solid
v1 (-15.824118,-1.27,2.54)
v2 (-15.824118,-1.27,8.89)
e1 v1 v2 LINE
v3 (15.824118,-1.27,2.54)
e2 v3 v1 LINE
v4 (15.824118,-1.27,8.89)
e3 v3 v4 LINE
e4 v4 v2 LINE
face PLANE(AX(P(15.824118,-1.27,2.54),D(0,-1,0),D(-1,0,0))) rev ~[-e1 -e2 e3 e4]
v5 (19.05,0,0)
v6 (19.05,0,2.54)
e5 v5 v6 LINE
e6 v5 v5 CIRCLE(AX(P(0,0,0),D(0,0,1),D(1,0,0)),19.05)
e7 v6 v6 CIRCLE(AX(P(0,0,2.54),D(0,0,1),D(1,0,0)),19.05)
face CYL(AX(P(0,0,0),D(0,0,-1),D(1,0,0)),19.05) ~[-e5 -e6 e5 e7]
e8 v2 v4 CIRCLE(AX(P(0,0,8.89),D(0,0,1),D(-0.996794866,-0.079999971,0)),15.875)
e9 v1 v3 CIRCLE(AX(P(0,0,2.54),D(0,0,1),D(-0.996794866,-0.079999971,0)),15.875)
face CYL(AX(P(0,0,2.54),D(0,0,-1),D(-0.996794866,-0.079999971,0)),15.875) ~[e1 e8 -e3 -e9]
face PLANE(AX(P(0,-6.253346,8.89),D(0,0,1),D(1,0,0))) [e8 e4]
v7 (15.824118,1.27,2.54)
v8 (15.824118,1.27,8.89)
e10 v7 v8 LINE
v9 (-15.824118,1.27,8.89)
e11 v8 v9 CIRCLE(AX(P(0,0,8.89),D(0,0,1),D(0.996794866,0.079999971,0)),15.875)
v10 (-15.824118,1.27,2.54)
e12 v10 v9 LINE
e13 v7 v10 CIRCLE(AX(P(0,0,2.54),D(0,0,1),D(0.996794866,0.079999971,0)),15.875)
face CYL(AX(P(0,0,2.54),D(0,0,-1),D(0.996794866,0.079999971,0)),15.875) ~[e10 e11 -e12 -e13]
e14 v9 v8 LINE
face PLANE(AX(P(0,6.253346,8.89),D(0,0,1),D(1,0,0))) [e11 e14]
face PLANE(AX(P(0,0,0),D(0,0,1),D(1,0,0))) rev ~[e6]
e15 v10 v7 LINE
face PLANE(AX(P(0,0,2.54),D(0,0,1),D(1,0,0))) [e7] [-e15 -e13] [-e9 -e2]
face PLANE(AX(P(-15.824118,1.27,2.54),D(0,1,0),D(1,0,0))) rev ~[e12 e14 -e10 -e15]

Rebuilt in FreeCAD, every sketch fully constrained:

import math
import FreeCAD as App
import Part
import Sketcher
from FreeCAD import Vector
Q = App.Units.Quantity

doc = App.newDocument("Part")
body = doc.addObject("PartDesign::Body", "Body")

sketch1 = body.newObject("Sketcher::SketchObject", "Sketch")
sketch1.AttachmentSupport = (doc.getObject("XY_Plane"), [""])
sketch1.MapMode = "FlatFace"
sketch1.addGeometry(Part.Circle(Vector(0, 0, 0), Vector(0, 0, 1), 19), False)
sketch1.addConstraint(Sketcher.Constraint("Coincident", 0, 3, -1, 1))
sketch1.addConstraint(Sketcher.Constraint("Diameter", 0, Q("1.5 in")))
pad1 = body.newObject("PartDesign::Pad", "Pad")
pad1.Profile = sketch1
pad1.Length = Q("0.1 in")

sketch2 = body.newObject("Sketcher::SketchObject", "Sketch001")
sketch2.AttachmentSupport = (doc.getObject("XY_Plane"), [""])
sketch2.MapMode = "FlatFace"
sketch2.AttachmentOffset = App.Placement(Vector(0, 0, 0.1 * 25.4), App.Rotation())
sketch2.addGeometry(Part.LineSegment(Vector(16, -1, 0), Vector(-16, -1, 0)), False)
sketch2.addGeometry(Part.ArcOfCircle(Part.Circle(Vector(0, 0, 0), Vector(0, 0, 1), 16), math.radians(-175), math.radians(-5)), False)
sketch2.addGeometry(Part.LineSegment(Vector(-16, 1, 0), Vector(16, 1, 0)), False)
sketch2.addGeometry(Part.ArcOfCircle(Part.Circle(Vector(0, 0, 0), Vector(0, 0, 1), 16), math.radians(5), math.radians(175)), False)
sketch2.addConstraint(Sketcher.Constraint("Coincident", 0, 1, 1, 2))
sketch2.addConstraint(Sketcher.Constraint("Coincident", 1, 1, 0, 2))
sketch2.addConstraint(Sketcher.Constraint("Coincident", 2, 1, 3, 2))
sketch2.addConstraint(Sketcher.Constraint("Coincident", 3, 1, 2, 2))
sketch2.addConstraint(Sketcher.Constraint("Horizontal", 0))
sketch2.addConstraint(Sketcher.Constraint("Horizontal", 2))
sketch2.addConstraint(Sketcher.Constraint("Coincident", 1, 3, -1, 1))
sketch2.addConstraint(Sketcher.Constraint("Coincident", 3, 3, -1, 1))
sketch2.addConstraint(Sketcher.Constraint("Equal", 1, 3))
sketch2.addConstraint(Sketcher.Constraint("Vertical", 1, 1, 2, 1))
sketch2.addConstraint(Sketcher.Constraint("Radius", 1, Q("0.625 in")))
sketch2.addConstraint(Sketcher.Constraint("DistanceY", 1, 1, 2, 1, Q("0.1 in")))
pad2 = body.newObject("PartDesign::Pad", "Pad001")
pad2.Profile = sketch2
pad2.Length = Q("0.25 in")

doc.recompute()
